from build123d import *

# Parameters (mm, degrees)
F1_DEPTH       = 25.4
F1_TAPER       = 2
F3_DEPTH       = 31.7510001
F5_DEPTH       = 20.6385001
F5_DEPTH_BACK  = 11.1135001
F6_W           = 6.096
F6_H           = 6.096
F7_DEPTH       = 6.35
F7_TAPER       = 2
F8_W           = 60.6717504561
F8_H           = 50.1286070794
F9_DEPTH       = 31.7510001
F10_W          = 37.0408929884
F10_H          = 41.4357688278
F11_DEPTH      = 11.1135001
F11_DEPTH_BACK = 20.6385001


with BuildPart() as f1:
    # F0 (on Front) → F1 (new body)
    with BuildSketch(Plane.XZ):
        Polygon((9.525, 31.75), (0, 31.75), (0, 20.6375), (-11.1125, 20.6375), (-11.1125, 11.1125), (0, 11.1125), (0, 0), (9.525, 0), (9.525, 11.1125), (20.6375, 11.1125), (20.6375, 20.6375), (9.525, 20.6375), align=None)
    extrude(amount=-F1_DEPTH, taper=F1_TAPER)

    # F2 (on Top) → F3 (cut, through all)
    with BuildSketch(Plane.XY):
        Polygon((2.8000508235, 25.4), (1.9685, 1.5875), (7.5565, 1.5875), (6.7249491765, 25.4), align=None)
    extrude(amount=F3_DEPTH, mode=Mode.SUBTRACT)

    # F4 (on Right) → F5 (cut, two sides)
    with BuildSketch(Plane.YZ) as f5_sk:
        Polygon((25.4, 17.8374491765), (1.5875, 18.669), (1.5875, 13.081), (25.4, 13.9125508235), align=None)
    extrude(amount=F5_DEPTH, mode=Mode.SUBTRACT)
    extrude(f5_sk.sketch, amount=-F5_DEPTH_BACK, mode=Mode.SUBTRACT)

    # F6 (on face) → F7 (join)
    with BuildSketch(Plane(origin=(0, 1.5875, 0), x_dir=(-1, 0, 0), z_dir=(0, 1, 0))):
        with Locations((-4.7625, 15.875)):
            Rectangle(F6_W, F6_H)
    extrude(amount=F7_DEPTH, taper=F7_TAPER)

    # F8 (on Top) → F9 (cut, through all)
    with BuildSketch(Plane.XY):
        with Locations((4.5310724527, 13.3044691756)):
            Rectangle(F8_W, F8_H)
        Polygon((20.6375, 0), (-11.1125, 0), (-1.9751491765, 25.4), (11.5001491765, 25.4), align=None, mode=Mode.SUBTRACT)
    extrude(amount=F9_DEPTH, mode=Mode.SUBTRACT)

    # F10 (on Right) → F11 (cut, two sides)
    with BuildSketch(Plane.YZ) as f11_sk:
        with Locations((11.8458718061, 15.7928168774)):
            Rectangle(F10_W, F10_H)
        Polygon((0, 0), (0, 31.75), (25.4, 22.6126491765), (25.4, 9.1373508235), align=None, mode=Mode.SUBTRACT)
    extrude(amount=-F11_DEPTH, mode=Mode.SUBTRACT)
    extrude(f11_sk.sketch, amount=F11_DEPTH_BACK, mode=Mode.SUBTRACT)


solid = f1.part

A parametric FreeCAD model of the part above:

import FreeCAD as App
import Part
import Sketcher
from FreeCAD import Vector
Q = App.Units.Quantity

doc = App.newDocument("Part")
body = doc.addObject("PartDesign::Body", "Body")

sketch1 = body.newObject("Sketcher::SketchObject", "Sketch")
sketch1.AttachmentSupport = (doc.getObject("XZ_Plane"), [""])
sketch1.MapMode = "FlatFace"
sketch1.addGeometry(Part.LineSegment(Vector(10, 32, 0), Vector(0, 32, 0)), False)
sketch1.addGeometry(Part.LineSegment(Vector(0, 32, 0), Vector(0, 21, 0)), False)
sketch1.addGeometry(Part.LineSegment(Vector(0, 21, 0), Vector(-11, 21, 0)), False)
sketch1.addGeometry(Part.LineSegment(Vector(-11, 21, 0), Vector(-11, 11, 0)), False)
sketch1.addGeometry(Part.LineSegment(Vector(-11, 11, 0), Vector(0, 11, 0)), False)
sketch1.addGeometry(Part.LineSegment(Vector(0, 11, 0), Vector(0, 0, 0)), False)
sketch1.addGeometry(Part.LineSegment(Vector(0, 0, 0), Vector(10, 0, 0)), False)
sketch1.addGeometry(Part.LineSegment(Vector(10, 0, 0), Vector(10, 11, 0)), False)
sketch1.addGeometry(Part.LineSegment(Vector(10, 11, 0), Vector(21, 11, 0)), False)
sketch1.addGeometry(Part.LineSegment(Vector(21, 11, 0), Vector(21, 21, 0)), False)
sketch1.addGeometry(Part.LineSegment(Vector(21, 21, 0), Vector(10, 21, 0)), False)
sketch1.addGeometry(Part.LineSegment(Vector(10, 21, 0), Vector(10, 32, 0)), False)
sketch1.addConstraint(Sketcher.Constraint("Coincident", 0, 2, 1, 1))
sketch1.addConstraint(Sketcher.Constraint("Coincident", 1, 2, 2, 1))
sketch1.addConstraint(Sketcher.Constraint("Coincident", 2, 2, 3, 1))
sketch1.addConstraint(Sketcher.Constraint("Coincident", 3, 2, 4, 1))
sketch1.addConstraint(Sketcher.Constraint("Coincident", 4, 2, 5, 1))
sketch1.addConstraint(Sketcher.Constraint("Coincident", 5, 2, 6, 1))
sketch1.addConstraint(Sketcher.Constraint("Coincident", 6, 2, 7, 1))
sketch1.addConstraint(Sketcher.Constraint("Coincident", 7, 2, 8, 1))
sketch1.addConstraint(Sketcher.Constraint("Coincident", 8, 2, 9, 1))
sketch1.addConstraint(Sketcher.Constraint("Coincident", 9, 2, 10, 1))
sketch1.addConstraint(Sketcher.Constraint("Coincident", 10, 2, 11, 1))
sketch1.addConstraint(Sketcher.Constraint("Coincident", 11, 2, 0, 1))
sketch1.addConstraint(Sketcher.Constraint("Horizontal", 0))
sketch1.addConstraint(Sketcher.Constraint("Vertical", 1))
sketch1.addConstraint(Sketcher.Constraint("Horizontal", 2))
sketch1.addConstraint(Sketcher.Constraint("Vertical", 3))
sketch1.addConstraint(Sketcher.Constraint("Horizontal", 4))
sketch1.addConstraint(Sketcher.Constraint("Vertical", 5))
sketch1.addConstraint(Sketcher.Constraint("Horizontal", 6))
sketch1.addConstraint(Sketcher.Constraint("Vertical", 7))
sketch1.addConstraint(Sketcher.Constraint("Horizontal", 8))
sketch1.addConstraint(Sketcher.Constraint("Vertical", 9))
sketch1.addConstraint(Sketcher.Constraint("Horizontal", 10))
sketch1.addConstraint(Sketcher.Constraint("Vertical", 11))
sketch1.addConstraint(Sketcher.Constraint("Coincident", 5, 2, -1, 1))
sketch1.addConstraint(Sketcher.Constraint("PointOnObject", 0, 2, -2))
sketch1.addConstraint(Sketcher.Constraint("Horizontal", 4, 2, 7, 2))
sketch1.addConstraint(Sketcher.Constraint("Horizontal", 2, 2, 9, 2))
sketch1.addConstraint(Sketcher.Constraint("Vertical", 7, 2, 10, 2))
sketch1.addConstraint(Sketcher.Constraint("Equal", 4, 8))
sketch1.addConstraint(Sketcher.Constraint("Equal", 10, 1))
sketch1.addConstraint(Sketcher.Constraint("Equal", 6, 3))
sketch1.addConstraint(Sketcher.Constraint("Equal", 1, 5))
sketch1.addConstraint(Sketcher.Constraint("DistanceX", 0, 2, 0, 1, Q("0.375 in")))
sketch1.addConstraint(Sketcher.Constraint("DistanceX", 2, 2, 2, 1, Q("0.4375 in")))
pad1 = body.newObject("PartDesign::Pad", "Pad")
pad1.Profile = sketch1
pad1.Length = Q("1 in")
pad1.Reversed = True
pad1.TaperAngle = -2

sketch2 = body.newObject("Sketcher::SketchObject", "Sketch001")
sketch2.AttachmentSupport = (doc.getObject("XY_Plane"), [""])
sketch2.MapMode = "FlatFace"
sketch2.addGeometry(Part.LineSegment(Vector(2.8, 25.4, 0), Vector(2, 1.6, 0)), False)
sketch2.addGeometry(Part.LineSegment(Vector(2, 1.6, 0), Vector(7.6, 1.6, 0)), False)
sketch2.addGeometry(Part.LineSegment(Vector(7.6, 1.6, 0), Vector(6.7, 25.4, 0)), False)
sketch2.addGeometry(Part.LineSegment(Vector(6.7, 25.4, 0), Vector(2.8, 25.4, 0)), False)
sketch2.addConstraint(Sketcher.Constraint("Coincident", 0, 2, 1, 1))
sketch2.addConstraint(Sketcher.Constraint("Coincident", 1, 2, 2, 1))
sketch2.addConstraint(Sketcher.Constraint("Coincident", 2, 2, 3, 1))
sketch2.addConstraint(Sketcher.Constraint("Coincident", 3, 2, 0, 1))
sketch2.addConstraint(Sketcher.Constraint("Horizontal", 1))
sketch2.addConstraint(Sketcher.Constraint("Horizontal", 3))
sketch2.addConstraint(Sketcher.Constraint("Equal", 0, 2))
sketch2.addConstraint(Sketcher.Constraint("DistanceY", -1, 1, 2, 2, Q("1 in")))
sketch2.addConstraint(Sketcher.Constraint("Angle", 0, Q("-92 deg")))
sketch2.addConstraint(Sketcher.Constraint("DistanceX", 1, 1, 1, 2, Q("0.22 in")))
sketch2.addConstraint(Sketcher.Constraint("DistanceY", -1, 1, 0, 2, Q("0.0625 in")))
sketch2.addConstraint(Sketcher.Constraint("DistanceX", -1, 1, 0, 2, Q("0.0775 in")))
pocket1 = body.newObject("PartDesign::Pocket", "Pocket")
pocket1.Profile = sketch2
pocket1.Type = "ThroughAll"
pocket1.Reversed = True

sketch3 = body.newObject("Sketcher::SketchObject", "Sketch002")
sketch3.AttachmentSupport = (doc.getObject("YZ_Plane"), [""])
sketch3.MapMode = "FlatFace"
sketch3.addGeometry(Part.LineSegment(Vector(25.4, 17.8, 0), Vector(1.6, 18.7, 0)), False)
sketch3.addGeometry(Part.LineSegment(Vector(1.6, 18.7, 0), Vector(1.6, 13.1, 0)), False)
sketch3.addGeometry(Part.LineSegment(Vector(1.6, 13.1, 0), Vector(25.4, 13.9, 0)), False)
sketch3.addGeometry(Part.LineSegment(Vector(25.4, 13.9, 0), Vector(25.4, 17.8, 0)), False)
sketch3.addConstraint(Sketcher.Constraint("Coincident", 0, 2, 1, 1))
sketch3.addConstraint(Sketcher.Constraint("Coincident", 1, 2, 2, 1))
sketch3.addConstraint(Sketcher.Constraint("Coincident", 2, 2, 3, 1))
sketch3.addConstraint(Sketcher.Constraint("Coincident", 3, 2, 0, 1))
sketch3.addConstraint(Sketcher.Constraint("Vertical", 1))
sketch3.addConstraint(Sketcher.Constraint("Vertical", 3))
sketch3.addConstraint(Sketcher.Constraint("Equal", 0, 2))
sketch3.addConstraint(Sketcher.Constraint("DistanceX", -1, 1, 2, 2, Q("1 in")))
sketch3.addConstraint(Sketcher.Constraint("Angle", 0, Q("178 deg")))
sketch3.addConstraint(Sketcher.Constraint("DistanceY", 1, 2, 1, 1, Q("0.22 in")))
sketch3.addConstraint(Sketcher.Constraint("DistanceX", -1, 1, 0, 2, Q("0.0625 in")))
sketch3.addConstraint(Sketcher.Constraint("DistanceY", -1, 1, 0, 2, Q("0.735 in")))
pocket2 = body.newObject("PartDesign::Pocket", "Pocket001")
pocket2.Profile = sketch3
pocket2.Type = "ThroughAll"
pocket2.Midplane = True

sketch4 = body.newObject("Sketcher::SketchObject", "Sketch003")
sketch4.AttachmentSupport = (doc.getObject("XZ_Plane"), [""])
sketch4.MapMode = "FlatFace"
sketch4.AttachmentOffset = App.Placement(Vector(0, 0, -0.0625 * 25.4), App.Rotation())
sketch4.addGeometry(Part.LineSegment(Vector(8, 19, 0), Vector(8, 13, 0)), False)
sketch4.addGeometry(Part.LineSegment(Vector(8, 13, 0), Vector(2, 13, 0)), False)
sketch4.addGeometry(Part.LineSegment(Vector(2, 13, 0), Vector(2, 19, 0)), False)
sketch4.addGeometry(Part.LineSegment(Vector(2, 19, 0), Vector(8, 19, 0)), False)
sketch4.addConstraint(Sketcher.Constraint("Coincident", 0, 2, 1, 1))
sketch4.addConstraint(Sketcher.Constraint("Coincident", 1, 2, 2, 1))
sketch4.addConstraint(Sketcher.Constraint("Coincident", 2, 2, 3, 1))
sketch4.addConstraint(Sketcher.Constraint("Coincident", 3, 2, 0, 1))
sketch4.addConstraint(Sketcher.Constraint("Vertical", 0))
sketch4.addConstraint(Sketcher.Constraint("Horizontal", 1))
sketch4.addConstraint(Sketcher.Constraint("Vertical", 2))
sketch4.addConstraint(Sketcher.Constraint("Horizontal", 3))
sketch4.addConstraint(Sketcher.Constraint("Equal", 3, 0))
sketch4.addConstraint(Sketcher.Constraint("DistanceX", 1, 2, 1, 1, Q("0.24 in")))
sketch4.addConstraint(Sketcher.Constraint("DistanceY", -1, 1, 0, 2, Q("0.505 in")))
sketch4.addConstraint(Sketcher.Constraint("DistanceX", -1, 1, 0, 2, Q("0.3075 in")))
pad2 = body.newObject("PartDesign::Pad", "Pad001")
pad2.Profile = sketch4
pad2.Length = Q("0.25 in")
pad2.Reversed = True
pad2.TaperAngle = -2

sketch5 = body.newObject("Sketcher::SketchObject", "Sketch004")
sketch5.AttachmentSupport = (doc.getObject("XY_Plane"), [""])
sketch5.MapMode = "FlatFace"
sketch5.addGeometry(Part.LineSegment(Vector(-26, 38, 0), Vector(-26, -12, 0)), False)
sketch5.addGeometry(Part.LineSegment(Vector(-26, -12, 0), Vector(35, -12, 0)), False)
sketch5.addGeometry(Part.LineSegment(Vector(35, -12, 0), Vector(35, 38, 0)), False)
sketch5.addGeometry(Part.LineSegment(Vector(35, 38, 0), Vector(-26, 38, 0)), False)
sketch5.addGeometry(Part.LineSegment(Vector(12, 25, 0), Vector(21, 0, 0)), False)
sketch5.addGeometry(Part.LineSegment(Vector(21, 0, 0), Vector(-11, 0, 0)), False)
sketch5.addGeometry(Part.LineSegment(Vector(-11, 0, 0), Vector(-2, 25, 0)), False)
sketch5.addGeometry(Part.LineSegment(Vector(-2, 25, 0), Vector(12, 25, 0)), False)
sketch5.addConstraint(Sketcher.Constraint("Coincident", 0, 2, 1, 1))
sketch5.addConstraint(Sketcher.Constraint("Coincident", 1, 2, 2, 1))
sketch5.addConstraint(Sketcher.Constraint("Coincident", 2, 2, 3, 1))
sketch5.addConstraint(Sketcher.Constraint("Coincident", 3, 2, 0, 1))
sketch5.addConstraint(Sketcher.Constraint("Coincident", 4, 2, 5, 1))
sketch5.addConstraint(Sketcher.Constraint("Coincident", 5, 2, 6, 1))
sketch5.addConstraint(Sketcher.Constraint("Coincident", 6, 2, 7, 1))
sketch5.addConstraint(Sketcher.Constraint("Coincident", 7, 2, 4, 1))
sketch5.addConstraint(Sketcher.Constraint("Vertical", 0))
sketch5.addConstraint(Sketcher.Constraint("Horizontal", 1))
sketch5.addConstraint(Sketcher.Constraint("Vertical", 2))
sketch5.addConstraint(Sketcher.Constraint("Horizontal", 3))
sketch5.addConstraint(Sketcher.Constraint("Horizontal", 5))
sketch5.addConstraint(Sketcher.Constraint("Horizontal", 7))
sketch5.addConstraint(Sketcher.Constraint("PointOnObject", 4, 2, -1))
sketch5.addConstraint(Sketcher.Constraint("Equal", 4, 6))
sketch5.addConstraint(Sketcher.Constraint("DistanceY", -1, 1, 6, 2, Q("1 in")))
sketch5.addConstraint(Sketcher.Constraint("DistanceX", 5, 2, 5, 1, Q("1.25 in")))
sketch5.addConstraint(Sketcher.Constraint("DistanceX", -1, 1, 4, 2, Q("0.8125 in")))
sketch5.addConstraint(Sketcher.Constraint("DistanceX", 7, 1, 7, 2, 13.475298))
sketch5.addConstraint(Sketcher.Constraint("DistanceX", 1, 1, 1, 2, 60.67175))
sketch5.addConstraint(Sketcher.Constraint("DistanceX", 7, 2, 2, 2, 23.366799))
sketch5.addConstraint(Sketcher.Constraint("DistanceY", 0, 2, 0, 1, 50.128607))
sketch5.addConstraint(Sketcher.Constraint("DistanceY", 0, 2, -1, 1, 11.759834))
pocket3 = body.newObject("PartDesign::Pocket", "Pocket002")
pocket3.Profile = sketch5
pocket3.Type = "ThroughAll"
pocket3.Reversed = True

sketch6 = body.newObject("Sketcher::SketchObject", "Sketch005")
sketch6.AttachmentSupport = (doc.getObject("YZ_Plane"), [""])
sketch6.MapMode = "FlatFace"
sketch6.addGeometry(Part.LineSegment(Vector(-7, 37, 0), Vector(-7, -5, 0)), False)
sketch6.addGeometry(Part.LineSegment(Vector(-7, -5, 0), Vector(30, -5, 0)), False)
sketch6.addGeometry(Part.LineSegment(Vector(30, -5, 0), Vector(30, 37, 0)), False)
sketch6.addGeometry(Part.LineSegment(Vector(30, 37, 0), Vector(-7, 37, 0)), False)
sketch6.addGeometry(Part.LineSegment(Vector(25, 9, 0), Vector(0, 0, 0)), False)
sketch6.addGeometry(Part.LineSegment(Vector(0, 0, 0), Vector(0, 32, 0)), False)
sketch6.addGeometry(Part.LineSegment(Vector(0, 32, 0), Vector(25, 23, 0)), False)
sketch6.addGeometry(Part.LineSegment(Vector(25, 23, 0), Vector(25, 9, 0)), False)
sketch6.addConstraint(Sketcher.Constraint("Coincident", 0, 2, 1, 1))
sketch6.addConstraint(Sketcher.Constraint("Coincident", 1, 2, 2, 1))
sketch6.addConstraint(Sketcher.Constraint("Coincident", 2, 2, 3, 1))
sketch6.addConstraint(Sketcher.Constraint("Coincident", 3, 2, 0, 1))
sketch6.addConstraint(Sketcher.Constraint("Coincident", 4, 2, 5, 1))
sketch6.addConstraint(Sketcher.Constraint("Coincident", 5, 2, 6, 1))
sketch6.addConstraint(Sketcher.Constraint("Coincident", 6, 2, 7, 1))
sketch6.addConstraint(Sketcher.Constraint("Coincident", 7, 2, 4, 1))
sketch6.addConstraint(Sketcher.Constraint("Vertical", 0))
sketch6.addConstraint(Sketcher.Constraint("Horizontal", 1))
sketch6.addConstraint(Sketcher.Constraint("Vertical", 2))
sketch6.addConstraint(Sketcher.Constraint("Horizontal", 3))
sketch6.addConstraint(Sketcher.Constraint("Vertical", 5))
sketch6.addConstraint(Sketcher.Constraint("Vertical", 7))
sketch6.addConstraint(Sketcher.Constraint("Coincident", 4, 2, -1, 1))
sketch6.addConstraint(Sketcher.Constraint("Equal", 4, 6))
sketch6.addConstraint(Sketcher.Constraint("DistanceX", -1, 1, 6, 2, Q("1 in")))
sketch6.addConstraint(Sketcher.Constraint("DistanceY", 5, 1, 5, 2, Q("1.25 in")))
sketch6.addConstraint(Sketcher.Constraint("DistanceY", 7, 2, 7, 1, 13.475298))
sketch6.addConstraint(Sketcher.Constraint("DistanceY", 0, 2, 0, 1, 41.435769))
sketch6.addConstraint(Sketcher.Constraint("DistanceY", -1, 1, 2, 2, 36.510701))
sketch6.addConstraint(Sketcher.Constraint("DistanceX", 1, 1, 1, 2, 37.040893))
sketch6.addConstraint(Sketcher.Constraint("DistanceX", -1, 1, 1, 2, 30.366318))
pocket4 = body.newObject("PartDesign::Pocket", "Pocket003")
pocket4.Profile = sketch6
pocket4.Type = "ThroughAll"
pocket4.Midplane = True

doc.recompute()
